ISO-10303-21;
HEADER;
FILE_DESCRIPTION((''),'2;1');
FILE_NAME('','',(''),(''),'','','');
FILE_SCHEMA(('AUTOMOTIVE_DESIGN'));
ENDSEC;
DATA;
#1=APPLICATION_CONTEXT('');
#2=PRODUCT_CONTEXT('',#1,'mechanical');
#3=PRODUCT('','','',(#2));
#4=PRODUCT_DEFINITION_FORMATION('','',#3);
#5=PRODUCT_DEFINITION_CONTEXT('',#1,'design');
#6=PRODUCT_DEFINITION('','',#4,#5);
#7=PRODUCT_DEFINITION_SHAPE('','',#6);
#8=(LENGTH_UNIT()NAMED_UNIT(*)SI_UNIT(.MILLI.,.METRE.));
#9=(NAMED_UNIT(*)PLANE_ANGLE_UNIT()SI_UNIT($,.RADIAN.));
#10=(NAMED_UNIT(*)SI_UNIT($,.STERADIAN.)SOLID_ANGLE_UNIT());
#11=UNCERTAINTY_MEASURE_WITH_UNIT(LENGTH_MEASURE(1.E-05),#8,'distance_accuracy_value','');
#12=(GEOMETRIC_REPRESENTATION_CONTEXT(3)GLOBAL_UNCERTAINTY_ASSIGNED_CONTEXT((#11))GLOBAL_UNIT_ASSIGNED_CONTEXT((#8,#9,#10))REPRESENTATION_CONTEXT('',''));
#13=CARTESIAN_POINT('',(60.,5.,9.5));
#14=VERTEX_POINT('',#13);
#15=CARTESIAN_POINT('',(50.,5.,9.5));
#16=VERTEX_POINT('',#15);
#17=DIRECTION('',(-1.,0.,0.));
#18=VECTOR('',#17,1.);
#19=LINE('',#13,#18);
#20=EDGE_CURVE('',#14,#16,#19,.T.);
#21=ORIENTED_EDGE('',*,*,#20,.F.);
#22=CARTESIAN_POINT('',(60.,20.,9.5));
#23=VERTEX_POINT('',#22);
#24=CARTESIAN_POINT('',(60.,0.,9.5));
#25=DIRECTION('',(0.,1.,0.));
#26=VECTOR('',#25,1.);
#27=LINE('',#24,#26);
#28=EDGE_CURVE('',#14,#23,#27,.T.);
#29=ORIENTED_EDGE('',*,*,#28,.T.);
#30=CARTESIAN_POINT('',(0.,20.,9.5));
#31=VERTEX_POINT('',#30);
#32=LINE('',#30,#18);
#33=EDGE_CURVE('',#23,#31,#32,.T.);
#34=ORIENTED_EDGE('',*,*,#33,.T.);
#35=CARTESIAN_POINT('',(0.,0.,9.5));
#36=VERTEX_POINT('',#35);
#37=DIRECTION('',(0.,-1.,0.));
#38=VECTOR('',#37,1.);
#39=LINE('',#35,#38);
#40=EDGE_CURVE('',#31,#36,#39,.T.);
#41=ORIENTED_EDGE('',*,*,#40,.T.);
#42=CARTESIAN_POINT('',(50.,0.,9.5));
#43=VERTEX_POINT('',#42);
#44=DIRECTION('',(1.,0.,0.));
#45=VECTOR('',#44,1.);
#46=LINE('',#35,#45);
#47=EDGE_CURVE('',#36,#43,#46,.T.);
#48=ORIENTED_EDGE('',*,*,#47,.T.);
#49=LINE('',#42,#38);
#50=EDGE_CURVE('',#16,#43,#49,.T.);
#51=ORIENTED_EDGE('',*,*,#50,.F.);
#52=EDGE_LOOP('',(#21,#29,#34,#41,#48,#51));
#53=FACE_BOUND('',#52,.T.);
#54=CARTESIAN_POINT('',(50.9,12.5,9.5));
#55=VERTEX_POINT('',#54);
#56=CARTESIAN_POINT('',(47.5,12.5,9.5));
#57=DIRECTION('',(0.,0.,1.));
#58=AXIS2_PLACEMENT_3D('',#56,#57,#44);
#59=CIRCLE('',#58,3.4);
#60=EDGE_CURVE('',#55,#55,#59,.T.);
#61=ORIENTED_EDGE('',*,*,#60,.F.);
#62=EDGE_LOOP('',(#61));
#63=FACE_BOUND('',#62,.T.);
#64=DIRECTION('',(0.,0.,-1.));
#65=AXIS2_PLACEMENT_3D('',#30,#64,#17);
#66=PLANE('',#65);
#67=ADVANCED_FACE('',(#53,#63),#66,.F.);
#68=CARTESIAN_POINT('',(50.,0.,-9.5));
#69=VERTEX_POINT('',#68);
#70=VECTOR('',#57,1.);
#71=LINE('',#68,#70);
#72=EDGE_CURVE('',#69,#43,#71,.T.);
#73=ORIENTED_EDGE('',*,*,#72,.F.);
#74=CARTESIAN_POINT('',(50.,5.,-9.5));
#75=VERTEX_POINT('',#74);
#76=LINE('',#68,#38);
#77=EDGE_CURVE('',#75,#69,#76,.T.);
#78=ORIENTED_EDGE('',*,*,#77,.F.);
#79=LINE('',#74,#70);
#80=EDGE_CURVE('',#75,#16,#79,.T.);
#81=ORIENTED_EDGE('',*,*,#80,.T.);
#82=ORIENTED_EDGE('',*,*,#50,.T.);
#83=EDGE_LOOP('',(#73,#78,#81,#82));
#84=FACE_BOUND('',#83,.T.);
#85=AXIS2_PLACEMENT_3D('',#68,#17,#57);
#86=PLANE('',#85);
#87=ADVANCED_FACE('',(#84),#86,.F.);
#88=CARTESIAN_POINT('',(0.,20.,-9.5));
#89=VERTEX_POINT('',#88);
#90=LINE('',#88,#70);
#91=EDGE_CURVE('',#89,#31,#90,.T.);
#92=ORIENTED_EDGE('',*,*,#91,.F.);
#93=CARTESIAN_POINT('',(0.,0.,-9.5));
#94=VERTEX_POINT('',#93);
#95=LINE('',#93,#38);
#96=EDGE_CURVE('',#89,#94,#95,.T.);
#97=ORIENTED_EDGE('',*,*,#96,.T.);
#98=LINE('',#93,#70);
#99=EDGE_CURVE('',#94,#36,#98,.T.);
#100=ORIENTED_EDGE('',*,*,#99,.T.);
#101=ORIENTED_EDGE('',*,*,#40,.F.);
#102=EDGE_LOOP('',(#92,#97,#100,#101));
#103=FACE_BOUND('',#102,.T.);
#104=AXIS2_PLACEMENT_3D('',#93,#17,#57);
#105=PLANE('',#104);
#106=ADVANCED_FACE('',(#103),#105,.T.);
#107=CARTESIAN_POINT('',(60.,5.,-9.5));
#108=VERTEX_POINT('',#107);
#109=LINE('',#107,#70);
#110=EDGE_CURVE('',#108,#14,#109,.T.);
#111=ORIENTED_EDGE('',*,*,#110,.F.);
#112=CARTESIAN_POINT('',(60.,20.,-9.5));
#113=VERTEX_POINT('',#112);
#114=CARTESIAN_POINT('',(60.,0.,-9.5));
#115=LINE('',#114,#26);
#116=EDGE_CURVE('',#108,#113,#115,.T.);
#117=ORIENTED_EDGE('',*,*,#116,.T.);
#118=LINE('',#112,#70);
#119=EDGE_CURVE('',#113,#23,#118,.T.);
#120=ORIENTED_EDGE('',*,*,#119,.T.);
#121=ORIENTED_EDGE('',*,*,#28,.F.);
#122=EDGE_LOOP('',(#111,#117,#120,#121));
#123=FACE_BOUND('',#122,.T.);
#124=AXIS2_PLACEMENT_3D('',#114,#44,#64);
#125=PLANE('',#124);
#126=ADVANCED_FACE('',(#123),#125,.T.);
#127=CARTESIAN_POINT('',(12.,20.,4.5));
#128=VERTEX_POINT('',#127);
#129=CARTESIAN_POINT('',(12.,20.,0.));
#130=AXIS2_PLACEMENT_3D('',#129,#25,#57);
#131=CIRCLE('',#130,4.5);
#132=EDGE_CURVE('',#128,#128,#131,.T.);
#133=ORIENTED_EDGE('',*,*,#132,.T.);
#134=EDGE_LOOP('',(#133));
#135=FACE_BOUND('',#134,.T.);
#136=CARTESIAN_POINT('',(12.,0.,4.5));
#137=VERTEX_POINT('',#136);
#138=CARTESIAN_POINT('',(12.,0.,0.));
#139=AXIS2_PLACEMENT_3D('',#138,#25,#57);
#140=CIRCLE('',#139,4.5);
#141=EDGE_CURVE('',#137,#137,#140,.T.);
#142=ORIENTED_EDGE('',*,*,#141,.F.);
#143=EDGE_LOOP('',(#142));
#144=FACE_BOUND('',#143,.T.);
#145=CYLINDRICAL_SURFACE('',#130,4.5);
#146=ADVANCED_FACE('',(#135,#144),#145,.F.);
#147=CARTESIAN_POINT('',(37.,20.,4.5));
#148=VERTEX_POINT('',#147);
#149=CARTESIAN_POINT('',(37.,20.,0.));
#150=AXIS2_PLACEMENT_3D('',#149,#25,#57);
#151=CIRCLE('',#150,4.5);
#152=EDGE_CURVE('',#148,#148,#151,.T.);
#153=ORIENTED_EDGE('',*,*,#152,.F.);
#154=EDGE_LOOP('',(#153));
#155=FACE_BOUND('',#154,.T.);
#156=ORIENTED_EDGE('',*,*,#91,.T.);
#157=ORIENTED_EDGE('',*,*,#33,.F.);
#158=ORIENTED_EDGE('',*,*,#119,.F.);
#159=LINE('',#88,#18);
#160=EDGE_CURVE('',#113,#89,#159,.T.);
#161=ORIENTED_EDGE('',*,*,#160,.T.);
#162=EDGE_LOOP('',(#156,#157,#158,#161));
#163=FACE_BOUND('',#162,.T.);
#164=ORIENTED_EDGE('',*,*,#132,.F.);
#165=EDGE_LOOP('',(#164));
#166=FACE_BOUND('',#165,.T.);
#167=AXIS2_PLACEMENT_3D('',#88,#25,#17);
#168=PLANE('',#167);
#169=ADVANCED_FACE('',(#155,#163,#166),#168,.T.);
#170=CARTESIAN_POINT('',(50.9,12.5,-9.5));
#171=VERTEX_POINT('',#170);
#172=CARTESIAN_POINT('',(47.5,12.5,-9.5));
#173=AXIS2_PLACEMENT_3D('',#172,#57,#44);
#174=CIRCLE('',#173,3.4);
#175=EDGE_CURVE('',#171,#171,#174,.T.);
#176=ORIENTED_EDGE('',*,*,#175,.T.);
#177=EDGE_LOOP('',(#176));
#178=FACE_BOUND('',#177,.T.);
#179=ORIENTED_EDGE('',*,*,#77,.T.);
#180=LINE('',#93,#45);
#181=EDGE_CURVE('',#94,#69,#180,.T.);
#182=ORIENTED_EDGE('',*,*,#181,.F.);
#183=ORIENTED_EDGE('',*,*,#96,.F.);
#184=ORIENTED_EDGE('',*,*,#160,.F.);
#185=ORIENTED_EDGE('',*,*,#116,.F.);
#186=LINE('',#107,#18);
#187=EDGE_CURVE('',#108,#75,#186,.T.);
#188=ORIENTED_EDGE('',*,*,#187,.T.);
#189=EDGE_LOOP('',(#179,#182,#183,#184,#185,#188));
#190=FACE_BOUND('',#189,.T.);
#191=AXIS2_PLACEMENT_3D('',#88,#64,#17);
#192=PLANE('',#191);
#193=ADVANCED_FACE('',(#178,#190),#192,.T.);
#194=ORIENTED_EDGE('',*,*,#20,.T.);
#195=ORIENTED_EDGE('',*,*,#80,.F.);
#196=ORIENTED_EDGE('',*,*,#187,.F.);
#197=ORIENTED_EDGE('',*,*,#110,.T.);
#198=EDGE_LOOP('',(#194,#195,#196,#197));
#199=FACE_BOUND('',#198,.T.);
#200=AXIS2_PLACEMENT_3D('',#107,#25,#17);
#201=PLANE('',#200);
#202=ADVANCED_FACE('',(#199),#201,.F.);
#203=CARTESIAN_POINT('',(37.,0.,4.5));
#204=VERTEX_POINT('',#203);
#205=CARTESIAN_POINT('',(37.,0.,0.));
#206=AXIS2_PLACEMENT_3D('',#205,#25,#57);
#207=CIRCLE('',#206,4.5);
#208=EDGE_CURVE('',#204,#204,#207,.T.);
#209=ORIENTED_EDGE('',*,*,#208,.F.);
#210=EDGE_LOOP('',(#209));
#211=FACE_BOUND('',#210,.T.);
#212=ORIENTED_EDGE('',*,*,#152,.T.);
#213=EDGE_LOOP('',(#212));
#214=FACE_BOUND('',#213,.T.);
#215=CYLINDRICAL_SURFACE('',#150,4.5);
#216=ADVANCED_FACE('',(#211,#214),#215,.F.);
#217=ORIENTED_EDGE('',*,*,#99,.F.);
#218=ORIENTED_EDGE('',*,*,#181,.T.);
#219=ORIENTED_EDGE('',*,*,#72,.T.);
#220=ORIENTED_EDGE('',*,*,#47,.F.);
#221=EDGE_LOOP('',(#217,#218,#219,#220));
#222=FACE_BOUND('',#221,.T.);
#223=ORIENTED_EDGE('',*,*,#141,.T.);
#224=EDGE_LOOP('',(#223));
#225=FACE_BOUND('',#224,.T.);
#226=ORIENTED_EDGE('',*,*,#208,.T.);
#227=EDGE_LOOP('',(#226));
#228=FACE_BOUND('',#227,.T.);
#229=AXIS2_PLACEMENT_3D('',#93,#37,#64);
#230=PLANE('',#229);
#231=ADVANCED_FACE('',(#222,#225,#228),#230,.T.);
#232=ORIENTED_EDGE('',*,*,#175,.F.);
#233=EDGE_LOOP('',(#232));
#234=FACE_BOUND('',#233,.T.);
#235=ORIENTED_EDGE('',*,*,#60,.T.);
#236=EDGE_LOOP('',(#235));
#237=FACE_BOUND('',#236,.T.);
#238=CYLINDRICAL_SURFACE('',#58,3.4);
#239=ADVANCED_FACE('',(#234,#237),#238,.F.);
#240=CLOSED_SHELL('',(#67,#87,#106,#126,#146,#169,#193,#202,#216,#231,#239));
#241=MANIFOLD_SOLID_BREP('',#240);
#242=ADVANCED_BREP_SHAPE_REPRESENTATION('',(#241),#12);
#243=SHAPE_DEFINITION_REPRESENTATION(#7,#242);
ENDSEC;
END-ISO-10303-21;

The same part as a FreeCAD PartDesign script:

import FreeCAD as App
import Part
import Sketcher
from FreeCAD import Vector
Q = App.Units.Quantity

doc = App.newDocument("Part")
body = doc.addObject("PartDesign::Body", "Body")

# Sketch on XY plane
sketch1 = doc.addObject("Sketcher::SketchObject", "Sketch")
body.addObject(sketch1)
sketch1.AttachmentSupport = (doc.XY_Plane, [""])
sketch1.MapMode = "FlatFace"
sketch1.addGeometry([
    Part.LineSegment(Vector(0, 20, 0), Vector(0, 0, 0)),
    Part.LineSegment(Vector(0, 0, 0), Vector(60, 0, 0)),
    Part.LineSegment(Vector(60, 0, 0), Vector(60, 20, 0)),
    Part.LineSegment(Vector(60, 20, 0), Vector(0, 20, 0)),
], False)
sketch1.addConstraint([
    Sketcher.Constraint("Coincident", 0, 2, 1, 1),
    Sketcher.Constraint("Coincident", 1, 2, 2, 1),
    Sketcher.Constraint("Coincident", 2, 2, 3, 1),
    Sketcher.Constraint("Coincident", 3, 2, 0, 1),
    Sketcher.Constraint("Vertical", 0),
    Sketcher.Constraint("Horizontal", 1),
    Sketcher.Constraint("Vertical", 2),
    Sketcher.Constraint("Horizontal", 3),
    Sketcher.Constraint("Coincident", 0, 2, -1, 1),
    Sketcher.Constraint("DistanceX", 1, 1, 1, 2, Q("60 mm")),
    Sketcher.Constraint("DistanceY", 0, 2, 0, 1, Q("20 mm")),
])
pad1 = doc.addObject("PartDesign::Pad", "Pad")
body.addObject(pad1)
pad1.Profile = sketch1
pad1.Length = 19
pad1.Midplane = True

# Sketch on XY plane
sketch2 = doc.addObject("Sketcher::SketchObject", "Sketch001")
body.addObject(sketch2)
sketch2.AttachmentSupport = (doc.XY_Plane, [""])
sketch2.MapMode = "FlatFace"
sketch2.AttachmentOffset = App.Placement(Vector(0, 0, 9.5), App.Rotation())
sketch2.addGeometry([
    Part.LineSegment(Vector(50, 5, 0), Vector(50, 0, 0)),
    Part.LineSegment(Vector(50, 0, 0), Vector(60, 0, 0)),
    Part.LineSegment(Vector(60, 0, 0), Vector(60, 5, 0)),
    Part.LineSegment(Vector(60, 5, 0), Vector(50, 5, 0)),
], False)
sketch2.addConstraint([
    Sketcher.Constraint("Coincident", 0, 2, 1, 1),
    Sketcher.Constraint("Coincident", 1, 2, 2, 1),
    Sketcher.Constraint("Coincident", 2, 2, 3, 1),
    Sketcher.Constraint("Coincident", 3, 2, 0, 1),
    Sketcher.Constraint("Vertical", 0),
    Sketcher.Constraint("Horizontal", 1),
    Sketcher.Constraint("Vertical", 2),
    Sketcher.Constraint("Horizontal", 3),
    Sketcher.Constraint("PointOnObject", 0, 2, -1),
    Sketcher.Constraint("DistanceX", 1, 1, 1, 2, Q("10 mm")),
    Sketcher.Constraint("DistanceY", 0, 2, 0, 1, Q("5 mm")),
    Sketcher.Constraint("DistanceX", -1, 1, 0, 2, Q("50 mm")),
])
pocket1 = doc.addObject("PartDesign::Pocket", "Pocket")
body.addObject(pocket1)
pocket1.Profile = sketch2
pocket1.Type = "ThroughAll"

# Sketch on XZ plane
sketch3 = doc.addObject("Sketcher::SketchObject", "Sketch002")
body.addObject(sketch3)
sketch3.AttachmentSupport = (doc.XZ_Plane, [""])
sketch3.MapMode = "FlatFace"
sketch3.AttachmentOffset = App.Placement(Vector(0, 0, -20), App.Rotation())
sketch3.addGeometry([
    Part.Circle(Vector(12, 0, 0), Vector(0, 0, 1), 4.5),
    Part.Circle(Vector(37, 0, 0), Vector(0, 0, 1), 4.5),
], False)
sketch3.addConstraint([
    Sketcher.Constraint("Equal", 0, 1),
    Sketcher.Constraint("PointOnObject", 0, 3, -1),
    Sketcher.Constraint("PointOnObject", 1, 3, -1),
    Sketcher.Constraint("Diameter", 0, Q("9 mm")),
    Sketcher.Constraint("DistanceX", -1, 1, 0, 3, Q("12 mm")),
    Sketcher.Constraint("DistanceX", -1, 1, 1, 3, Q("37 mm")),
])
doc.recompute()
hole = doc.addObject("PartDesign::Hole", "Hole")
body.addObject(hole)
hole.Profile = sketch3
hole.ThreadType = "None"
hole.Diameter = 9
hole.DepthType = "ThroughAll"
hole.Reversed = True

# Sketch on XY plane
sketch4 = doc.addObject("Sketcher::SketchObject", "Sketch003")
body.addObject(sketch4)
sketch4.AttachmentSupport = (doc.XY_Plane, [""])
sketch4.MapMode = "FlatFace"
sketch4.AttachmentOffset = App.Placement(Vector(0, 0, 9.5), App.Rotation())
sketch4.addGeometry(Part.Circle(Vector(47.5, 12.5, 0), Vector(0, 0, 1), 3.4), False)
sketch4.addConstraint([
    Sketcher.Constraint("Diameter", 0, Q("6.8 mm")),
    Sketcher.Constraint("DistanceX", -1, 1, 0, 3, Q("47.5 mm")),
    Sketcher.Constraint("DistanceY", -1, 1, 0, 3, Q("12.5 mm")),
])
doc.recompute()
hole2 = doc.addObject("PartDesign::Hole", "Hole001")
body.addObject(hole2)
hole2.Profile = sketch4
hole2.ThreadType = "None"
hole2.Diameter = 6.8
hole2.DepthType = "ThroughAll"

doc.recompute()
